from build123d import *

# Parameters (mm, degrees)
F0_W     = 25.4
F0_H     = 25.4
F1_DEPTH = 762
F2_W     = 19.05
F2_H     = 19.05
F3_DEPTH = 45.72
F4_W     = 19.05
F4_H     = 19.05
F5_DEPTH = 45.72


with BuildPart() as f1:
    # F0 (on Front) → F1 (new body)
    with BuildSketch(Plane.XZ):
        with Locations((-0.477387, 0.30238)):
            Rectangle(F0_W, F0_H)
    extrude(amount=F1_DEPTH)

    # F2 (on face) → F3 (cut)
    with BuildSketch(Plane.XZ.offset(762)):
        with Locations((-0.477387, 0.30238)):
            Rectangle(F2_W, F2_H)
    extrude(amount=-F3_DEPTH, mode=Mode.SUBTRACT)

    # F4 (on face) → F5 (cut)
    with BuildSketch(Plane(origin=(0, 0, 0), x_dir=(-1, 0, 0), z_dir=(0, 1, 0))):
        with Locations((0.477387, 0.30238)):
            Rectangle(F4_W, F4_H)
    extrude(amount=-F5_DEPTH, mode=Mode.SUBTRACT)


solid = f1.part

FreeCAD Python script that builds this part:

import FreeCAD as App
import Part
import Sketcher
Q = App.Units.Quantity


def add_polygon(sketch, points):
    """Adds a closed chain of lines whose ends are joined by coincident constraints."""
    first, n = sketch.GeometryCount, len(points)
    for a, b in zip(points, points[1:] + points[:1]):
        sketch.addGeometry(Part.LineSegment(App.Vector(*a, 0), App.Vector(*b, 0)), False)
    for i in range(n):
        sketch.addConstraint(Sketcher.Constraint("Coincident", first + i, 2, first + (i + 1) % n, 1))

doc = App.newDocument("Part")
body = doc.addObject("PartDesign::Body", "Body")

sketch1 = body.newObject("Sketcher::SketchObject", "Sketch")
sketch1.AttachmentSupport = (doc.getObject("XZ_Plane"), [""])
sketch1.MapMode = "FlatFace"
add_polygon(sketch1, [(-13.177387, 13.00238), (-13.177387, -12.39762), (12.222613, -12.39762), (12.222613, 13.00238)])
sketch1.addConstraint(Sketcher.Constraint("Vertical", 0))
sketch1.addConstraint(Sketcher.Constraint("Horizontal", 1))
sketch1.addConstraint(Sketcher.Constraint("Vertical", 2))
sketch1.addConstraint(Sketcher.Constraint("Horizontal", 3))
sketch1.addConstraint(Sketcher.Constraint("Equal", 3, 0))
sketch1.addConstraint(Sketcher.Constraint("DistanceX", 1, 1, 1, 2, Q("1 in")))
sketch1.addConstraint(Sketcher.Constraint("DistanceY", 0, 2, -1, 1, Q("12.39762 mm")))
sketch1.addConstraint(Sketcher.Constraint("DistanceX", 0, 2, -1, 1, Q("13.177387 mm")))
pad1 = body.newObject("PartDesign::Pad", "Pad")
pad1.Profile = sketch1
pad1.Length = Q("30 in")

sketch2 = body.newObject("Sketcher::SketchObject", "Sketch001")
sketch2.AttachmentSupport = (doc.getObject("XZ_Plane"), [""])
sketch2.MapMode = "FlatFace"
sketch2.AttachmentOffset = App.Placement(App.Vector(0, 0, 30 * 25.4), App.Rotation())
add_polygon(sketch2, [(-10.002387, 9.82738), (-10.002387, -9.22262), (9.047613, -9.22262), (9.047613, 9.82738)])
sketch2.addConstraint(Sketcher.Constraint("Vertical", 0))
sketch2.addConstraint(Sketcher.Constraint("Horizontal", 1))
sketch2.addConstraint(Sketcher.Constraint("Vertical", 2))
sketch2.addConstraint(Sketcher.Constraint("Horizontal", 3))
sketch2.addConstraint(Sketcher.Constraint("Equal", 3, 0))
sketch2.addConstraint(Sketcher.Constraint("DistanceX", 1, 1, 1, 2, Q("0.75 in")))
sketch2.addConstraint(Sketcher.Constraint("DistanceY", 0, 2, -1, 1, Q("9.22262 mm")))
sketch2.addConstraint(Sketcher.Constraint("DistanceX", 0, 2, -1, 1, Q("10.002387 mm")))
pocket1 = body.newObject("PartDesign::Pocket", "Pocket")
pocket1.Profile = sketch2
pocket1.Length = Q("1.8 in")

sketch3 = body.newObject("Sketcher::SketchObject", "Sketch002")
sketch3.AttachmentSupport = (doc.getObject("XZ_Plane"), [""])
sketch3.MapMode = "FlatFace"
add_polygon(sketch3, [(9.047613, 9.82738), (9.047613, -9.22262), (-10.002387, -9.22262), (-10.002387, 9.82738)])
sketch3.addConstraint(Sketcher.Constraint("Vertical", 0))
sketch3.addConstraint(Sketcher.Constraint("Horizontal", 1))
sketch3.addConstraint(Sketcher.Constraint("Vertical", 2))
sketch3.addConstraint(Sketcher.Constraint("Horizontal", 3))
sketch3.addConstraint(Sketcher.Constraint("Equal", 3, 0))
sketch3.addConstraint(Sketcher.Constraint("DistanceX", 1, 2, 1, 1, Q("0.75 in")))
sketch3.addConstraint(Sketcher.Constraint("DistanceY", 0, 2, -1, 1, Q("9.22262 mm")))
sketch3.addConstraint(Sketcher.Constraint("DistanceX", -1, 1, 0, 2, Q("9.047613 mm")))
pocket2 = body.newObject("PartDesign::Pocket", "Pocket001")
pocket2.Profile = sketch3
pocket2.Length = Q("1.8 in")
pocket2.Reversed = True

doc.recompute()
